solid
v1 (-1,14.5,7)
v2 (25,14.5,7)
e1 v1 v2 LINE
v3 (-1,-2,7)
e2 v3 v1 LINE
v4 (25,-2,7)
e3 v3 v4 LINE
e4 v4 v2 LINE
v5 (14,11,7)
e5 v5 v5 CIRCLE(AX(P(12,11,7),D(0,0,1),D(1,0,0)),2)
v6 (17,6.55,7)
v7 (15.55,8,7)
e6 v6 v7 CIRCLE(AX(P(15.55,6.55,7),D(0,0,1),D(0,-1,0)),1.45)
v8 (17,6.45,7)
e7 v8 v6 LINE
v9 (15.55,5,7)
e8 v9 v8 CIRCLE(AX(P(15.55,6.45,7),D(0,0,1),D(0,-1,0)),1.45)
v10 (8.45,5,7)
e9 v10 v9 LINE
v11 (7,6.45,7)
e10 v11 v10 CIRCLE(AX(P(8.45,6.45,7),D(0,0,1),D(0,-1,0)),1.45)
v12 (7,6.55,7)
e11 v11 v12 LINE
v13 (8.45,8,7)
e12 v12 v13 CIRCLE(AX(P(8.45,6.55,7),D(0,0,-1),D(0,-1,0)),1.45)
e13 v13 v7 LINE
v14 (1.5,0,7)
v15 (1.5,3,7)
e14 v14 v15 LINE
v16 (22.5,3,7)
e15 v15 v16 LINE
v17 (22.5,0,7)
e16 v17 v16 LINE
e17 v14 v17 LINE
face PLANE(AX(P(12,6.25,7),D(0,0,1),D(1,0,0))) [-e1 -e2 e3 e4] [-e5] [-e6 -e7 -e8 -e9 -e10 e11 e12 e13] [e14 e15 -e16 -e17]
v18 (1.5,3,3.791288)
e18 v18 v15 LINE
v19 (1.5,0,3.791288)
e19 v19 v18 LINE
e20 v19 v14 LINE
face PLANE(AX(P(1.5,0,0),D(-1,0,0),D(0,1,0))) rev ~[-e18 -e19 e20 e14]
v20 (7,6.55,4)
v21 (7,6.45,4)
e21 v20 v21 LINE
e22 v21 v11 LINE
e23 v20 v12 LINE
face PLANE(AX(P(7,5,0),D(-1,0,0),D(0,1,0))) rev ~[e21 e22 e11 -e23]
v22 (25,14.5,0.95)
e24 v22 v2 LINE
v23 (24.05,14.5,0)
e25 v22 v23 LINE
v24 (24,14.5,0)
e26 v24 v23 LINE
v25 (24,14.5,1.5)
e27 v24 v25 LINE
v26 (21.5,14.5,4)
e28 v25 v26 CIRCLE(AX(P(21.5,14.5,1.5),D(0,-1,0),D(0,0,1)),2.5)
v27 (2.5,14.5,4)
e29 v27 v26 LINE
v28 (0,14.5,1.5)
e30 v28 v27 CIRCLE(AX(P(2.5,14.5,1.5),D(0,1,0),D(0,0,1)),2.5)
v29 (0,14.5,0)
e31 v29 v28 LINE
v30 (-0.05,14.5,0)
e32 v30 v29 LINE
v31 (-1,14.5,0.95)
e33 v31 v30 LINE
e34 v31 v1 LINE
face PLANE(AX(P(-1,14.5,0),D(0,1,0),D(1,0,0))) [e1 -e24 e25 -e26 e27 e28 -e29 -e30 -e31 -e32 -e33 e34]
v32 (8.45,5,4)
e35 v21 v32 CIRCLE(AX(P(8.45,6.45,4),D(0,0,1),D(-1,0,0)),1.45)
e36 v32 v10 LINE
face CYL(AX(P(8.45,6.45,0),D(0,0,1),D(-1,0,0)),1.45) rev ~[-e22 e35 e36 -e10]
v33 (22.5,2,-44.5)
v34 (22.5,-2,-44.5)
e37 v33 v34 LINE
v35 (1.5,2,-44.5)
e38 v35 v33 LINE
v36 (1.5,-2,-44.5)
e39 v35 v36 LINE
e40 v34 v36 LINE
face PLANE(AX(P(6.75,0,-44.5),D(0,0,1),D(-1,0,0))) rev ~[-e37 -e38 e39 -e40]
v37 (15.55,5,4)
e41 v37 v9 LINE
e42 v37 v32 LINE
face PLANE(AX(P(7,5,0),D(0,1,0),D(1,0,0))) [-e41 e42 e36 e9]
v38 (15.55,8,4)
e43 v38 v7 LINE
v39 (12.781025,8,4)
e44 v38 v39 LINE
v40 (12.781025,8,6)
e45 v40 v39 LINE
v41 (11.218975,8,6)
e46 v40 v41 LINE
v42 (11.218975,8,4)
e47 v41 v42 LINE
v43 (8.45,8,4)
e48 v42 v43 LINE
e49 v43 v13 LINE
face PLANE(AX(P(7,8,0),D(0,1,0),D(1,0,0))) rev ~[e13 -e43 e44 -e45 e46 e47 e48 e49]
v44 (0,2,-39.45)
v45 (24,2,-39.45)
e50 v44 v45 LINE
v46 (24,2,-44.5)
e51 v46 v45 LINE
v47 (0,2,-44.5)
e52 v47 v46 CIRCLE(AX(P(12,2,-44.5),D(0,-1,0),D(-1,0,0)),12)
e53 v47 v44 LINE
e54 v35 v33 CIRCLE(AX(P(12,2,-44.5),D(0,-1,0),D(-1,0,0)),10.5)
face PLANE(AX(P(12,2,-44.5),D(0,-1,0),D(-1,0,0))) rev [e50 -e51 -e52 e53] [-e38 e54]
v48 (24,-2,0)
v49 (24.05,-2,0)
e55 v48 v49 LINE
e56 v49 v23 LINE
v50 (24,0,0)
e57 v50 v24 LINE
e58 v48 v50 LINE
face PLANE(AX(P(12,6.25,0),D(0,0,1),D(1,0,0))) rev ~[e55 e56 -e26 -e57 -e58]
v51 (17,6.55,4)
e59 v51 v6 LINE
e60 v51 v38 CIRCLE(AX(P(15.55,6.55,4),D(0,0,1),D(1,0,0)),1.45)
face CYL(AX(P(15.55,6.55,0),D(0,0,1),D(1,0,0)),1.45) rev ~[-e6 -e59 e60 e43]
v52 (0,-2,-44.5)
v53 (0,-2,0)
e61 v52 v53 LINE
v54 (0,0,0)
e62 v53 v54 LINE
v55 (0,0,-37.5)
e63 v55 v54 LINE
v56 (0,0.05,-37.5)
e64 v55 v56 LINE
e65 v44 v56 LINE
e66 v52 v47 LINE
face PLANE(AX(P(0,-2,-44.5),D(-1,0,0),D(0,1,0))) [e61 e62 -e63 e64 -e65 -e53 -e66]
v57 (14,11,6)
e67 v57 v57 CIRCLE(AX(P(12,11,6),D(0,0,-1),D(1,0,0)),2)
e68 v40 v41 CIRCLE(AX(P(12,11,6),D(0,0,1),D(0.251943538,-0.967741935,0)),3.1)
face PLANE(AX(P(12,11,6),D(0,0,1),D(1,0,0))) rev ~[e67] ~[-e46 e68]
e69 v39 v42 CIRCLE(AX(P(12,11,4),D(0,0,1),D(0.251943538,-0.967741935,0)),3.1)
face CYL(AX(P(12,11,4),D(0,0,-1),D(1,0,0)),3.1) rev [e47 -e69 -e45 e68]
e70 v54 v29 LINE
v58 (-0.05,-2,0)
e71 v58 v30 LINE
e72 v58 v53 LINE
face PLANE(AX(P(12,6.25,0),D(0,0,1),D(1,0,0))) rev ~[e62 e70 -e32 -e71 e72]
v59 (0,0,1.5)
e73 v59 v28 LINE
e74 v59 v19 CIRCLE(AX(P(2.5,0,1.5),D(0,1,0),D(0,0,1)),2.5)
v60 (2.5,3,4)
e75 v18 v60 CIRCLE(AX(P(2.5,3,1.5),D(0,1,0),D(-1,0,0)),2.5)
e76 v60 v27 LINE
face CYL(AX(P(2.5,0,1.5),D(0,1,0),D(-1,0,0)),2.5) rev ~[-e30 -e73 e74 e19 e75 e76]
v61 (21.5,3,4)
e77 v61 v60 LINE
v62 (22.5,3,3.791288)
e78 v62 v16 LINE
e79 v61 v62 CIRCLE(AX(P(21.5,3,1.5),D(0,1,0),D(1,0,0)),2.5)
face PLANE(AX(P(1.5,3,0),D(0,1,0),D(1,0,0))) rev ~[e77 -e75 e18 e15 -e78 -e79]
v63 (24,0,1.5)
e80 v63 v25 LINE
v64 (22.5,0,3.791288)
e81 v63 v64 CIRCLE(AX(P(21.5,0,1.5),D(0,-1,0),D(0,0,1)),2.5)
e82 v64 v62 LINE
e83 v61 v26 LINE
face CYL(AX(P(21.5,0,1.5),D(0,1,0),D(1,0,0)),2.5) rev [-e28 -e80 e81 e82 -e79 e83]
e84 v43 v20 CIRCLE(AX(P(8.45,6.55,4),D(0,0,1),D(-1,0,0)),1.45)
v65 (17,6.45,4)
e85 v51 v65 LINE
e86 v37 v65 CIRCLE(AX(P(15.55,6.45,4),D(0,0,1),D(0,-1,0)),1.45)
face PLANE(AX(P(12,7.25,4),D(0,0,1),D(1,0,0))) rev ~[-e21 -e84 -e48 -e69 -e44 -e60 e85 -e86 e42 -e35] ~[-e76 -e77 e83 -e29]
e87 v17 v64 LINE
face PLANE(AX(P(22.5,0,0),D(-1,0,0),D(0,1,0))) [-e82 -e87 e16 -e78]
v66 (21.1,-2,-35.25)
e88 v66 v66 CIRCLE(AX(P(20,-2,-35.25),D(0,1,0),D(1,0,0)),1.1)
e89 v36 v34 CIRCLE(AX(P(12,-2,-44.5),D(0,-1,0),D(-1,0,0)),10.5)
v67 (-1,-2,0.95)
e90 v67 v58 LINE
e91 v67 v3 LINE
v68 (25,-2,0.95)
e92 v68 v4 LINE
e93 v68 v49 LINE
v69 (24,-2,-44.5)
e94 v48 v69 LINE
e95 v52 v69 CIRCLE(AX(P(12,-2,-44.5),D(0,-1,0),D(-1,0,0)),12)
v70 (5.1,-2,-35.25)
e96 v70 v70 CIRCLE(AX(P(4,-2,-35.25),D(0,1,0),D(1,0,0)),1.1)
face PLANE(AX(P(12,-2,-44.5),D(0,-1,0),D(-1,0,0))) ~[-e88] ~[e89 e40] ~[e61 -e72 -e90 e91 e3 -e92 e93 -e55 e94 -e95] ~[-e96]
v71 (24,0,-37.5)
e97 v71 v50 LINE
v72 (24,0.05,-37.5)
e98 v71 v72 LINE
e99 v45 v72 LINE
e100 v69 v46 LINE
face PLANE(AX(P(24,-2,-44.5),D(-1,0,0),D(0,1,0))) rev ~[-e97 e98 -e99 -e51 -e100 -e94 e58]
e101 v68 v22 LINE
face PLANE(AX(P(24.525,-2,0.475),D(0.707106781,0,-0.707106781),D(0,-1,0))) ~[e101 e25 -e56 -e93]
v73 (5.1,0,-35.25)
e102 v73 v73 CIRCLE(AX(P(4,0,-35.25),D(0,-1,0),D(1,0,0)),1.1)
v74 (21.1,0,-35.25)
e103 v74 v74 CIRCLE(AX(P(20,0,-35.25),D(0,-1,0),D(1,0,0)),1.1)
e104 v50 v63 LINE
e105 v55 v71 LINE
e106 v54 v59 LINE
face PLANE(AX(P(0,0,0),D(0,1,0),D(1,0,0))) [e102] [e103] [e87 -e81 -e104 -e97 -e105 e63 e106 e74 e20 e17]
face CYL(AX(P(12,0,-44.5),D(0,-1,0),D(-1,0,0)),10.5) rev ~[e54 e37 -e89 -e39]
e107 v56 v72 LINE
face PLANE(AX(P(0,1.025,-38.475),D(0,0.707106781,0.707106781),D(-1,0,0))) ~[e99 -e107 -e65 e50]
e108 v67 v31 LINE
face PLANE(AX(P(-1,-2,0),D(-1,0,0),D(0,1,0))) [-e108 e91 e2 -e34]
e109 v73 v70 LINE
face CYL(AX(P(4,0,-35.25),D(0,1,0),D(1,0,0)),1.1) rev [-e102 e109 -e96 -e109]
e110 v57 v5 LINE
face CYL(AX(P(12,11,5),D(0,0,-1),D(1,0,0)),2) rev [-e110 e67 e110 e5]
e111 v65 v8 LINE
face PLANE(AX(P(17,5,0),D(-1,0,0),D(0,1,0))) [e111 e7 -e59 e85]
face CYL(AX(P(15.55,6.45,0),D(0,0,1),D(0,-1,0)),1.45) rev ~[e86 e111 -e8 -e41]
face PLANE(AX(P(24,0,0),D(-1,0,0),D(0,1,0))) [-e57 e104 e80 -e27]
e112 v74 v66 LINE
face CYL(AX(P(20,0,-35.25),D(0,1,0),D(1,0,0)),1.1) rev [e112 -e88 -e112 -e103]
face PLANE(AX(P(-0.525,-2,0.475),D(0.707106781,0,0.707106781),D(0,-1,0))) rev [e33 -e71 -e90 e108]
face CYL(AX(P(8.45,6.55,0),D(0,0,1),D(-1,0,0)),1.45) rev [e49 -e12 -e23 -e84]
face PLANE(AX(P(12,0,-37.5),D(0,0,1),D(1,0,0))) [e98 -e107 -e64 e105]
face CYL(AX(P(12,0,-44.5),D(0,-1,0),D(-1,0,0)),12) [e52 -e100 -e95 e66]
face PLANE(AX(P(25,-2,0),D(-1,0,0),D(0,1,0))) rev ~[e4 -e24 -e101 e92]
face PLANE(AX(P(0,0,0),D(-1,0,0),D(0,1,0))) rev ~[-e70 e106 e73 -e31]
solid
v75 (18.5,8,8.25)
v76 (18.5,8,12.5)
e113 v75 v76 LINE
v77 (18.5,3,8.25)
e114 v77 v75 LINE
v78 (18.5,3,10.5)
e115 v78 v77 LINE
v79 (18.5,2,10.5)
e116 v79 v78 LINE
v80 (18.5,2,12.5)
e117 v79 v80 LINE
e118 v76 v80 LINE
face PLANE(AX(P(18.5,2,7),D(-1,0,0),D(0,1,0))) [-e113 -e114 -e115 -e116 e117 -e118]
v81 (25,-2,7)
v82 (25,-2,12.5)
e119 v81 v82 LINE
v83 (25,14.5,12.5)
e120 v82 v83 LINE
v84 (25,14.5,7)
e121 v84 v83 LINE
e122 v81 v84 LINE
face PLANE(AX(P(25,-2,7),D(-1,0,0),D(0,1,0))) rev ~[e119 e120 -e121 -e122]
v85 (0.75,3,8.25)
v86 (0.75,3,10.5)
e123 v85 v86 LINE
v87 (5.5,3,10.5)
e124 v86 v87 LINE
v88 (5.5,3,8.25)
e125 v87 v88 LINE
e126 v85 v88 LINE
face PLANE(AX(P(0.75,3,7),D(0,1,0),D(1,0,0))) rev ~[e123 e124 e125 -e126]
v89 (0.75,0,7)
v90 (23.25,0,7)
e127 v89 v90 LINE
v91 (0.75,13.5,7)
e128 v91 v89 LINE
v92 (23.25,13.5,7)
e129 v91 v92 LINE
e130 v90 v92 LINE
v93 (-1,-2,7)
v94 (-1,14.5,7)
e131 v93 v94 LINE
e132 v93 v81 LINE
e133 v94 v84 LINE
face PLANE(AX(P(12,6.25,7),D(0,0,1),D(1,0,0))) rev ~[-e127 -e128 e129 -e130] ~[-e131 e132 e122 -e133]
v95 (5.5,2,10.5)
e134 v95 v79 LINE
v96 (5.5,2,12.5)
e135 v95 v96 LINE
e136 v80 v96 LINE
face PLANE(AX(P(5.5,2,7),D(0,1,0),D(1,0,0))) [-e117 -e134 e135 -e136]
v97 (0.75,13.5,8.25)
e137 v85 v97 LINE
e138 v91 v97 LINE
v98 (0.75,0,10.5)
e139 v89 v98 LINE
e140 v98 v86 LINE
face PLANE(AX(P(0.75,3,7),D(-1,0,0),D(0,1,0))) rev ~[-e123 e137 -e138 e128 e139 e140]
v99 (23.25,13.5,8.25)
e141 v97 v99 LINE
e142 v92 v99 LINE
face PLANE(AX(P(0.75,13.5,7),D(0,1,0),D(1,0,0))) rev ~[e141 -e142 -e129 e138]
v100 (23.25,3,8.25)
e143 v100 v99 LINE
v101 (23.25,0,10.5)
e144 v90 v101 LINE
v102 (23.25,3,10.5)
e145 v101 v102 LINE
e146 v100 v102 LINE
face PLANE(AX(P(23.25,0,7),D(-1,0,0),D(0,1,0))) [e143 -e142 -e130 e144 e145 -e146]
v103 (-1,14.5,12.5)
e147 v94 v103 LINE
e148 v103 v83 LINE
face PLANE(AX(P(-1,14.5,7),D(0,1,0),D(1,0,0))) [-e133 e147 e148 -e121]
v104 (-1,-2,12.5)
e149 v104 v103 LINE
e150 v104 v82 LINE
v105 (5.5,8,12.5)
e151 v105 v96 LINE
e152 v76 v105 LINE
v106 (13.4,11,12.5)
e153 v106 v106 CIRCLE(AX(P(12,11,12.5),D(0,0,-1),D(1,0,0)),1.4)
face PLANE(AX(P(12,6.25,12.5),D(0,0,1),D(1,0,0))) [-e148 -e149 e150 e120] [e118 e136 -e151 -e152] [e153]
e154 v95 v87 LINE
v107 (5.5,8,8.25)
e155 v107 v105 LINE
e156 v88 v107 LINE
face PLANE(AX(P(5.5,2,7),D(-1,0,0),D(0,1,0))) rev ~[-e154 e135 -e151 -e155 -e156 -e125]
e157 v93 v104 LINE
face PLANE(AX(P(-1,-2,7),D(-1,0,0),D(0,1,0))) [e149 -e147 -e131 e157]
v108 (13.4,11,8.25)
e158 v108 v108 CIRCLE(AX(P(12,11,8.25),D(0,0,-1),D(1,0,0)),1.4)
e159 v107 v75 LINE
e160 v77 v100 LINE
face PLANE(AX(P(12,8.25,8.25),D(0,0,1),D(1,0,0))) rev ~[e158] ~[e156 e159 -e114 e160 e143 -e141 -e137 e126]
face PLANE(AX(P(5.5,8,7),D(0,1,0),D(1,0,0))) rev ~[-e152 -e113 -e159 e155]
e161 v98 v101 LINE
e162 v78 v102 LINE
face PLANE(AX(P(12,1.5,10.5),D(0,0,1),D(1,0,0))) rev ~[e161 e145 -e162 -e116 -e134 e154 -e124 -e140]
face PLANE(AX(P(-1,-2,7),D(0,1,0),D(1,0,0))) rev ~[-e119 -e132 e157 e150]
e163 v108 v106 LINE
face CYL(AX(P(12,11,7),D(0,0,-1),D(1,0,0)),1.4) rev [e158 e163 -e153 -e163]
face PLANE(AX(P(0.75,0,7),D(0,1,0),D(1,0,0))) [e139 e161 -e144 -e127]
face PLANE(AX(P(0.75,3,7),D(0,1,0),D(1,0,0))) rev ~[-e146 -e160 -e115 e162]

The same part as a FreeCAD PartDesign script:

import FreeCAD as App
import Part
import Sketcher


def edges_at(feature, points):
    """Names of the edges that pass closest to the given points."""
    edges = feature.Shape.Edges
    near = lambda p: min(range(len(edges)), key=lambda i: edges[i].distToShape(Part.Vertex(*p))[0])
    return sorted({f"Edge{near(p) + 1}" for p in points})

doc = App.newDocument("Part")
body = doc.addObject("PartDesign::Body", "Body")

# Sketch on XY plane
sketch1 = body.newObject("Sketcher::SketchObject", "Sketch")
sketch1.AttachmentSupport = (doc.getObject("XY_Plane"), [""])
sketch1.MapMode = "FlatFace"
sketch1.AttachmentOffset = App.Placement(App.Vector(0, 0, 4), App.Rotation())
sketch1.addGeometry(Part.Circle(App.Vector(12, 11, 0), App.Vector(0, 0, 1), 3.1), False)
sketch1.addConstraint([
    Sketcher.Constraint("Diameter", 0, 6.2),
    Sketcher.Constraint("DistanceX", -1, 1, 0, 3, 12.0),
    Sketcher.Constraint("DistanceY", -1, 1, 0, 3, 11.0),
])
pad1 = body.newObject("PartDesign::Pad", "Pad")
pad1.Profile = sketch1
pad1.Length = 2
body2 = doc.addObject("PartDesign::Body", "Body001")

# Sketch on XY plane
sketch2 = body2.newObject("Sketcher::SketchObject", "Sketch001")
sketch2.AttachmentSupport = (doc.getObject("XY_Plane001"), [""])
sketch2.MapMode = "FlatFace"
sketch2.addGeometry([
    Part.LineSegment(App.Vector(1.5, 3, 0), App.Vector(1.5, 0, 0)),
    Part.LineSegment(App.Vector(1.5, 0, 0), App.Vector(22.5, 0, 0)),
    Part.LineSegment(App.Vector(22.5, 0, 0), App.Vector(22.5, 3, 0)),
    Part.LineSegment(App.Vector(22.5, 3, 0), App.Vector(1.5, 3, 0)),
], False)
sketch2.addConstraint([
    Sketcher.Constraint("Coincident", 0, 2, 1, 1),
    Sketcher.Constraint("Coincident", 1, 2, 2, 1),
    Sketcher.Constraint("Coincident", 2, 2, 3, 1),
    Sketcher.Constraint("Coincident", 3, 2, 0, 1),
    Sketcher.Constraint("Vertical", 0),
    Sketcher.Constraint("Horizontal", 1),
    Sketcher.Constraint("Vertical", 2),
    Sketcher.Constraint("Horizontal", 3),
    Sketcher.Constraint("PointOnObject", 0, 2, -1),
    Sketcher.Constraint("DistanceX", 1, 1, 1, 2, 21.0),
    Sketcher.Constraint("DistanceY", 0, 2, 0, 1, 3.0),
    Sketcher.Constraint("DistanceX", -1, 1, 0, 2, 1.5),
])
pad2 = body2.newObject("PartDesign::Pad", "Pad001")
pad2.Profile = sketch2
pad2.Length = 7
body3 = doc.addObject("PartDesign::Body", "Body002")

# Sketch on XY plane
sketch3 = body3.newObject("Sketcher::SketchObject", "Sketch002")
sketch3.AttachmentSupport = (doc.getObject("XY_Plane002"), [""])
sketch3.MapMode = "FlatFace"
sketch3.addGeometry([
    Part.LineSegment(App.Vector(7, 8, 0), App.Vector(7, 5, 0)),
    Part.LineSegment(App.Vector(7, 5, 0), App.Vector(17, 5, 0)),
    Part.LineSegment(App.Vector(17, 5, 0), App.Vector(17, 8, 0)),
    Part.LineSegment(App.Vector(17, 8, 0), App.Vector(7, 8, 0)),
], False)
sketch3.addConstraint([
    Sketcher.Constraint("Coincident", 0, 2, 1, 1),
    Sketcher.Constraint("Coincident", 1, 2, 2, 1),
    Sketcher.Constraint("Coincident", 2, 2, 3, 1),
    Sketcher.Constraint("Coincident", 3, 2, 0, 1),
    Sketcher.Constraint("Vertical", 0),
    Sketcher.Constraint("Horizontal", 1),
    Sketcher.Constraint("Vertical", 2),
    Sketcher.Constraint("Horizontal", 3),
    Sketcher.Constraint("DistanceX", 1, 1, 1, 2, 10.0),
    Sketcher.Constraint("DistanceY", 0, 2, 0, 1, 3.0),
    Sketcher.Constraint("DistanceX", -1, 1, 0, 2, 7.0),
    Sketcher.Constraint("DistanceY", -1, 1, 0, 2, 5.0),
])
pad3 = body3.newObject("PartDesign::Pad", "Pad002")
pad3.Profile = sketch3
pad3.Length = 7
doc.recompute()

fillet = body3.newObject("PartDesign::Fillet", "Fillet")
fillet.Base = (pad3, edges_at(pad3, [
    (7, 5, 3.5),
    (7, 8, 3.5),
    (17, 5, 3.5),
    (17, 8, 3.5),
]))
fillet.Radius = 1.45
body4 = doc.addObject("PartDesign::Body", "Body003")
body4.AllowCompound = True

# Sketch on XY plane
sketch4 = body4.newObject("Sketcher::SketchObject", "Sketch003")
sketch4.AttachmentSupport = (doc.getObject("XY_Plane003"), [""])
sketch4.MapMode = "FlatFace"
sketch4.AttachmentOffset = App.Placement(App.Vector(0, 0, 5), App.Rotation())
sketch4.addGeometry(Part.Circle(App.Vector(12, 11, 0), App.Vector(0, 0, 1), 2), False)
sketch4.addConstraint([
    Sketcher.Constraint("Diameter", 0, 4.0),
    Sketcher.Constraint("DistanceX", -1, 1, 0, 3, 12.0),
    Sketcher.Constraint("DistanceY", -1, 1, 0, 3, 11.0),
])
pad4 = body4.newObject("PartDesign::Pad", "Pad003")
pad4.Profile = sketch4
pad4.Length = 2
doc.recompute()

boolean = body4.newObject("PartDesign::Boolean", "Boolean")
boolean.Type = "Fuse"
boolean.addObjects([body])
doc.recompute()

boolean2 = body4.newObject("PartDesign::Boolean", "Boolean001")
boolean2.Type = "Fuse"
boolean2.addObjects([body2])
doc.recompute()

boolean3 = body4.newObject("PartDesign::Boolean", "Boolean002")
boolean3.Type = "Fuse"
boolean3.addObjects([body3])
body5 = doc.addObject("PartDesign::Body", "Body004")

# Sketch on XY plane
sketch5 = body5.newObject("Sketcher::SketchObject", "Sketch004")
sketch5.AttachmentSupport = (doc.getObject("XY_Plane004"), [""])
sketch5.MapMode = "FlatFace"
sketch5.addGeometry([
    Part.LineSegment(App.Vector(0, 14, 0), App.Vector(0, 0, 0)),
    Part.LineSegment(App.Vector(0, 0, 0), App.Vector(24, 0, 0)),
    Part.LineSegment(App.Vector(24, 0, 0), App.Vector(24, 14, 0)),
    Part.LineSegment(App.Vector(24, 14, 0), App.Vector(0, 14, 0)),
], False)
sketch5.addConstraint([
    Sketcher.Constraint("Coincident", 0, 2, 1, 1),
    Sketcher.Constraint("Coincident", 1, 2, 2, 1),
    Sketcher.Constraint("Coincident", 2, 2, 3, 1),
    Sketcher.Constraint("Coincident", 3, 2, 0, 1),
    Sketcher.Constraint("Vertical", 0),
    Sketcher.Constraint("Horizontal", 1),
    Sketcher.Constraint("Vertical", 2),
    Sketcher.Constraint("Horizontal", 3),
    Sketcher.Constraint("Coincident", 0, 2, -1, 1),
    Sketcher.Constraint("DistanceX", 1, 1, 1, 2, 24.0),
    Sketcher.Constraint("DistanceY", 0, 2, 0, 1, 14.5),
])
pad5 = body5.newObject("PartDesign::Pad", "Pad004")
pad5.Profile = sketch5
pad5.Length = 4
doc.recompute()

fillet2 = body5.newObject("PartDesign::Fillet", "Fillet001")
fillet2.Base = (pad5, edges_at(pad5, [(0, 7.25, 4), (24, 7.25, 4)]))
fillet2.Radius = 2.5
body6 = doc.addObject("PartDesign::Body", "Body005")

# Sketch on XY plane
sketch6 = body6.newObject("Sketcher::SketchObject", "Sketch005")
sketch6.AttachmentSupport = (doc.getObject("XY_Plane005"), [""])
sketch6.MapMode = "FlatFace"
sketch6.addGeometry([
    Part.LineSegment(App.Vector(-1, 14, 0), App.Vector(-1, -2, 0)),
    Part.LineSegment(App.Vector(-1, -2, 0), App.Vector(25, -2, 0)),
    Part.LineSegment(App.Vector(25, -2, 0), App.Vector(25, 14, 0)),
    Part.LineSegment(App.Vector(25, 14, 0), App.Vector(-1, 14, 0)),
], False)
sketch6.addConstraint([
    Sketcher.Constraint("Coincident", 0, 2, 1, 1),
    Sketcher.Constraint("Coincident", 1, 2, 2, 1),
    Sketcher.Constraint("Coincident", 2, 2, 3, 1),
    Sketcher.Constraint("Coincident", 3, 2, 0, 1),
    Sketcher.Constraint("Vertical", 0),
    Sketcher.Constraint("Horizontal", 1),
    Sketcher.Constraint("Vertical", 2),
    Sketcher.Constraint("Horizontal", 3),
    Sketcher.Constraint("DistanceX", 1, 1, 1, 2, 26.0),
    Sketcher.Constraint("DistanceY", 0, 2, 0, 1, 16.5),
    Sketcher.Constraint("DistanceX", 0, 2, -1, 1, 1.0),
    Sketcher.Constraint("DistanceY", 0, 2, -1, 1, 2.0),
])
pad6 = body6.newObject("PartDesign::Pad", "Pad005")
pad6.Profile = sketch6
pad6.Length = 7
doc.recompute()

boolean4 = body6.newObject("PartDesign::Boolean", "Boolean003")
boolean4.Type = "Cut"
boolean4.addObjects([body5])
doc.recompute()

boolean5 = body6.newObject("PartDesign::Boolean", "Boolean004")
boolean5.Type = "Cut"
boolean5.addObjects([body4])
doc.recompute()

chamfer = body6.newObject("PartDesign::Chamfer", "Chamfer")
chamfer.Base = (boolean5, edges_at(boolean5, [(-1, 6.25, 0), (25, 6.25, 0)]))
chamfer.Size = 0.95
body7 = doc.addObject("PartDesign::Body", "Body006")

# Sketch on XY plane
sketch7 = body7.newObject("Sketcher::SketchObject", "Sketch006")
sketch7.AttachmentSupport = (doc.getObject("XY_Plane006"), [""])
sketch7.MapMode = "FlatFace"
sketch7.AttachmentOffset = App.Placement(App.Vector(0, 0, -44.5), App.Rotation())
sketch7.addGeometry([
    Part.LineSegment(App.Vector(12, -2, 0), App.Vector(12, 2, 0)),
    Part.LineSegment(App.Vector(12, 2, 0), App.Vector(1.5, 2, 0)),
    Part.LineSegment(App.Vector(1.5, 2, 0), App.Vector(1.5, -2, 0)),
    Part.LineSegment(App.Vector(1.5, -2, 0), App.Vector(12, -2, 0)),
], False)
sketch7.addGeometry(Part.LineSegment(App.Vector(12, 2, 0), App.Vector(12, -2, 0)), True)  # axis
sketch7.addConstraint([
    Sketcher.Constraint("Coincident", 0, 2, 1, 1),
    Sketcher.Constraint("Coincident", 1, 2, 2, 1),
    Sketcher.Constraint("Coincident", 2, 2, 3, 1),
    Sketcher.Constraint("Coincident", 3, 2, 0, 1),
    Sketcher.Constraint("Vertical", 0),
    Sketcher.Constraint("Horizontal", 1),
    Sketcher.Constraint("Vertical", 2),
    Sketcher.Constraint("Horizontal", 3),
    Sketcher.Constraint("Vertical", 4),
    Sketcher.Constraint("Coincident", 4, 1, 0, 2),
    Sketcher.Constraint("Horizontal", 2, 2, 4, 2),
    Sketcher.Constraint("DistanceY", 0, 1, 0, 2, 4.0),
    Sketcher.Constraint("DistanceX", 1, 2, 1, 1, 10.5),
    Sketcher.Constraint("DistanceX", -1, 1, 0, 2, 12.0),
    Sketcher.Constraint("DistanceY", -1, 1, 0, 2, 2.0),
])
revolution = body7.newObject("PartDesign::Revolution", "Revolution")
revolution.Profile = sketch7
revolution.ReferenceAxis = (sketch7, ["Axis0"])
revolution.Angle = 180
body8 = doc.addObject("PartDesign::Body", "Body007")

# Sketch on XY plane
sketch8 = body8.newObject("Sketcher::SketchObject", "Sketch007")
sketch8.AttachmentSupport = (doc.getObject("XY_Plane007"), [""])
sketch8.MapMode = "FlatFace"
sketch8.AttachmentOffset = App.Placement(App.Vector(0, 0, -44.5), App.Rotation())
sketch8.addGeometry([
    Part.LineSegment(App.Vector(12, -2, 0), App.Vector(12, 2, 0)),
    Part.LineSegment(App.Vector(12, 2, 0), App.Vector(0, 2, 0)),
    Part.LineSegment(App.Vector(0, 2, 0), App.Vector(0, -2, 0)),
    Part.LineSegment(App.Vector(0, -2, 0), App.Vector(12, -2, 0)),
], False)
sketch8.addGeometry(Part.LineSegment(App.Vector(12, 2, 0), App.Vector(12, -2, 0)), True)  # axis
sketch8.addConstraint([
    Sketcher.Constraint("Coincident", 0, 2, 1, 1),
    Sketcher.Constraint("Coincident", 1, 2, 2, 1),
    Sketcher.Constraint("Coincident", 2, 2, 3, 1),
    Sketcher.Constraint("Coincident", 3, 2, 0, 1),
    Sketcher.Constraint("Vertical", 0),
    Sketcher.Constraint("Horizontal", 1),
    Sketcher.Constraint("Vertical", 2),
    Sketcher.Constraint("Horizontal", 3),
    Sketcher.Constraint("Vertical", 4),
    Sketcher.Constraint("Coincident", 4, 1, 0, 2),
    Sketcher.Constraint("Symmetric", 1, 2, 2, 2, -1, 1),
    Sketcher.Constraint("Horizontal", 2, 2, 4, 2),
    Sketcher.Constraint("DistanceX", 1, 2, 1, 1, 12.0),
    Sketcher.Constraint("DistanceY", 0, 1, 0, 2, 4.0),
])
revolution2 = body8.newObject("PartDesign::Revolution", "Revolution001")
revolution2.Profile = sketch8
revolution2.ReferenceAxis = (sketch8, ["Axis0"])
revolution2.Angle = 180
body9 = doc.addObject("PartDesign::Body", "Body008")

# Sketch on XY plane
sketch9 = body9.newObject("Sketcher::SketchObject", "Sketch008")
sketch9.AttachmentSupport = (doc.getObject("XY_Plane008"), [""])
sketch9.MapMode = "FlatFace"
sketch9.AttachmentOffset = App.Placement(App.Vector(0, 0, -44.5), App.Rotation())
sketch9.addGeometry([
    Part.LineSegment(App.Vector(0, 2, 0), App.Vector(0, -2, 0)),
    Part.LineSegment(App.Vector(0, -2, 0), App.Vector(24, -2, 0)),
    Part.LineSegment(App.Vector(24, -2, 0), App.Vector(24, 2, 0)),
    Part.LineSegment(App.Vector(24, 2, 0), App.Vector(0, 2, 0)),
], False)
sketch9.addConstraint([
    Sketcher.Constraint("Coincident", 0, 2, 1, 1),
    Sketcher.Constraint("Coincident", 1, 2, 2, 1),
    Sketcher.Constraint("Coincident", 2, 2, 3, 1),
    Sketcher.Constraint("Coincident", 3, 2, 0, 1),
    Sketcher.Constraint("Vertical", 0),
    Sketcher.Constraint("Horizontal", 1),
    Sketcher.Constraint("Vertical", 2),
    Sketcher.Constraint("Horizontal", 3),
    Sketcher.Constraint("Symmetric", 0, 2, 3, 2, -1, 1),
    Sketcher.Constraint("DistanceX", 1, 1, 1, 2, 24.0),
    Sketcher.Constraint("DistanceY", 0, 2, 0, 1, 4.0),
])
pad7 = body9.newObject("PartDesign::Pad", "Pad006")
pad7.Profile = sketch9
pad7.Length = 7
doc.recompute()

boolean6 = body9.newObject("PartDesign::Boolean", "Boolean005")
boolean6.Type = "Fuse"
boolean6.addObjects([body8])
doc.recompute()

boolean7 = body9.newObject("PartDesign::Boolean", "Boolean006")
boolean7.Type = "Cut"
boolean7.addObjects([body7])
body10 = doc.addObject("PartDesign::Body", "Body009")

# Sketch on XZ plane
sketch10 = body10.newObject("Sketcher::SketchObject", "Sketch009")
sketch10.AttachmentSupport = (doc.getObject("XZ_Plane009"), [""])
sketch10.MapMode = "FlatFace"
sketch10.addGeometry(Part.Circle(App.Vector(4, -35.2, 0), App.Vector(0, 0, 1), 1.1), False)
sketch10.addConstraint([
    Sketcher.Constraint("Diameter", 0, 2.2),
    Sketcher.Constraint("DistanceX", -1, 1, 0, 3, 4.0),
    Sketcher.Constraint("DistanceY", 0, 3, -1, 1, 35.25),
])
pad8 = body10.newObject("PartDesign::Pad", "Pad007")
pad8.Profile = sketch10
pad8.Length = 10
body11 = doc.addObject("PartDesign::Body", "Body010")
body11.AllowCompound = True

# Sketch on XZ plane
sketch11 = body11.newObject("Sketcher::SketchObject", "Sketch010")
sketch11.AttachmentSupport = (doc.getObject("XZ_Plane010"), [""])
sketch11.MapMode = "FlatFace"
sketch11.addGeometry(Part.Circle(App.Vector(20, -35.2, 0), App.Vector(0, 0, 1), 1.1), False)
sketch11.addConstraint([
    Sketcher.Constraint("Diameter", 0, 2.2),
    Sketcher.Constraint("DistanceX", -1, 1, 0, 3, 20.0),
    Sketcher.Constraint("DistanceY", 0, 3, -1, 1, 35.25),
])
pad9 = body11.newObject("PartDesign::Pad", "Pad008")
pad9.Profile = sketch11
pad9.Length = 10
doc.recompute()

boolean8 = body11.newObject("PartDesign::Boolean", "Boolean007")
boolean8.Type = "Fuse"
boolean8.addObjects([body10])
body12 = doc.addObject("PartDesign::Body", "Body011")

# Sketch on XY plane
sketch12 = body12.newObject("Sketcher::SketchObject", "Sketch011")
sketch12.AttachmentSupport = (doc.getObject("XY_Plane011"), [""])
sketch12.MapMode = "FlatFace"
sketch12.AttachmentOffset = App.Placement(App.Vector(0, 0, -37.5), App.Rotation())
sketch12.addGeometry([
    Part.LineSegment(App.Vector(0, 0, 0), App.Vector(0, -2, 0)),
    Part.LineSegment(App.Vector(0, -2, 0), App.Vector(24, -2, 0)),
    Part.LineSegment(App.Vector(24, -2, 0), App.Vector(24, 0, 0)),
    Part.LineSegment(App.Vector(24, 0, 0), App.Vector(0, 0, 0)),
], False)
sketch12.addConstraint([
    Sketcher.Constraint("Coincident", 0, 2, 1, 1),
    Sketcher.Constraint("Coincident", 1, 2, 2, 1),
    Sketcher.Constraint("Coincident", 2, 2, 3, 1),
    Sketcher.Constraint("Coincident", 3, 2, 0, 1),
    Sketcher.Constraint("Vertical", 0),
    Sketcher.Constraint("Horizontal", 1),
    Sketcher.Constraint("Vertical", 2),
    Sketcher.Constraint("Horizontal", 3),
    Sketcher.Constraint("Coincident", 3, 2, -1, 1),
    Sketcher.Constraint("DistanceX", 1, 1, 1, 2, 24.0),
    Sketcher.Constraint("DistanceY", 0, 2, 0, 1, 2.0),
])
pad10 = body12.newObject("PartDesign::Pad", "Pad009")
pad10.Profile = sketch12
pad10.Length = 43.5
doc.recompute()

boolean9 = body12.newObject("PartDesign::Boolean", "Boolean008")
boolean9.Type = "Cut"
boolean9.addObjects([body11])
doc.recompute()

boolean10 = body12.newObject("PartDesign::Boolean", "Boolean009")
boolean10.Type = "Fuse"
boolean10.addObjects([body6])
doc.recompute()

boolean11 = body12.newObject("PartDesign::Boolean", "Boolean010")
boolean11.Type = "Fuse"
boolean11.addObjects([body9])
doc.recompute()

chamfer2 = body12.newObject("PartDesign::Chamfer", "Chamfer001")
chamfer2.Base = (boolean11, edges_at(boolean11, [(12, 2, -37.5)]))
chamfer2.Size = 1.95
body13 = doc.addObject("PartDesign::Body", "Body012")

# Sketch on XY plane
sketch13 = body13.newObject("Sketcher::SketchObject", "Sketch012")
sketch13.AttachmentSupport = (doc.getObject("XY_Plane012"), [""])
sketch13.MapMode = "FlatFace"
sketch13.AttachmentOffset = App.Placement(App.Vector(0, 0, 7), App.Rotation())
sketch13.addGeometry([
    Part.LineSegment(App.Vector(1, 14, 0), App.Vector(1, 3, 0)),
    Part.LineSegment(App.Vector(1, 3, 0), App.Vector(23, 3, 0)),
    Part.LineSegment(App.Vector(23, 3, 0), App.Vector(23, 14, 0)),
    Part.LineSegment(App.Vector(23, 14, 0), App.Vector(1, 14, 0)),
], False)
sketch13.addConstraint([
    Sketcher.Constraint("Coincident", 0, 2, 1, 1),
    Sketcher.Constraint("Coincident", 1, 2, 2, 1),
    Sketcher.Constraint("Coincident", 2, 2, 3, 1),
    Sketcher.Constraint("Coincident", 3, 2, 0, 1),
    Sketcher.Constraint("Vertical", 0),
    Sketcher.Constraint("Horizontal", 1),
    Sketcher.Constraint("Vertical", 2),
    Sketcher.Constraint("Horizontal", 3),
    Sketcher.Constraint("DistanceX", 1, 1, 1, 2, 22.5),
    Sketcher.Constraint("DistanceY", 0, 2, 0, 1, 10.5),
    Sketcher.Constraint("DistanceY", -1, 1, 0, 2, 3.0),
    Sketcher.Constraint("DistanceX", -1, 1, 0, 2, 0.75),
])
pad11 = body13.newObject("PartDesign::Pad", "Pad010")
pad11.Profile = sketch13
pad11.Length = 1.25
body14 = doc.addObject("PartDesign::Body", "Body013")

# Sketch on XY plane
sketch14 = body14.newObject("Sketcher::SketchObject", "Sketch013")
sketch14.AttachmentSupport = (doc.getObject("XY_Plane013"), [""])
sketch14.MapMode = "FlatFace"
sketch14.AttachmentOffset = App.Placement(App.Vector(0, 0, 7), App.Rotation())
sketch14.addGeometry(Part.Circle(App.Vector(12, 11, 0), App.Vector(0, 0, 1), 1.4), False)
sketch14.addConstraint([
    Sketcher.Constraint("Diameter", 0, 2.8),
    Sketcher.Constraint("DistanceX", -1, 1, 0, 3, 12.0),
    Sketcher.Constraint("DistanceY", -1, 1, 0, 3, 11.0),
])
pad12 = body14.newObject("PartDesign::Pad", "Pad011")
pad12.Profile = sketch14
pad12.Length = 6
body15 = doc.addObject("PartDesign::Body", "Body014")

# Sketch on XY plane
sketch15 = body15.newObject("Sketcher::SketchObject", "Sketch014")
sketch15.AttachmentSupport = (doc.getObject("XY_Plane014"), [""])
sketch15.MapMode = "FlatFace"
sketch15.AttachmentOffset = App.Placement(App.Vector(0, 0, 7), App.Rotation())
sketch15.addGeometry([
    Part.LineSegment(App.Vector(0.8, 3, 0), App.Vector(0.8, 0, 0)),
    Part.LineSegment(App.Vector(0.8, 0, 0), App.Vector(23.2, 0, 0)),
    Part.LineSegment(App.Vector(23.2, 0, 0), App.Vector(23.2, 3, 0)),
    Part.LineSegment(App.Vector(23.2, 3, 0), App.Vector(0.8, 3, 0)),
], False)
sketch15.addConstraint([
    Sketcher.Constraint("Coincident", 0, 2, 1, 1),
    Sketcher.Constraint("Coincident", 1, 2, 2, 1),
    Sketcher.Constraint("Coincident", 2, 2, 3, 1),
    Sketcher.Constraint("Coincident", 3, 2, 0, 1),
    Sketcher.Constraint("Vertical", 0),
    Sketcher.Constraint("Horizontal", 1),
    Sketcher.Constraint("Vertical", 2),
    Sketcher.Constraint("Horizontal", 3),
    Sketcher.Constraint("PointOnObject", 0, 2, -1),
    Sketcher.Constraint("DistanceY", 0, 2, 0, 1, 3.0),
    Sketcher.Constraint("DistanceX", 1, 1, 1, 2, 22.5),
    Sketcher.Constraint("DistanceX", -1, 1, 0, 2, 0.75),
])
pad13 = body15.newObject("PartDesign::Pad", "Pad012")
pad13.Profile = sketch15
pad13.Length = 3.5
body16 = doc.addObject("PartDesign::Body", "Body015")
body16.AllowCompound = True

# Sketch on XY plane
sketch16 = body16.newObject("Sketcher::SketchObject", "Sketch015")
sketch16.AttachmentSupport = (doc.getObject("XY_Plane015"), [""])
sketch16.MapMode = "FlatFace"
sketch16.AttachmentOffset = App.Placement(App.Vector(0, 0, 7), App.Rotation())
sketch16.addGeometry([
    Part.LineSegment(App.Vector(6, 8, 0), App.Vector(6, 2, 0)),
    Part.LineSegment(App.Vector(6, 2, 0), App.Vector(18, 2, 0)),
    Part.LineSegment(App.Vector(18, 2, 0), App.Vector(18, 8, 0)),
    Part.LineSegment(App.Vector(18, 8, 0), App.Vector(6, 8, 0)),
], False)
sketch16.addConstraint([
    Sketcher.Constraint("Coincident", 0, 2, 1, 1),
    Sketcher.Constraint("Coincident", 1, 2, 2, 1),
    Sketcher.Constraint("Coincident", 2, 2, 3, 1),
    Sketcher.Constraint("Coincident", 3, 2, 0, 1),
    Sketcher.Constraint("Vertical", 0),
    Sketcher.Constraint("Horizontal", 1),
    Sketcher.Constraint("Vertical", 2),
    Sketcher.Constraint("Horizontal", 3),
    Sketcher.Constraint("DistanceX", 1, 1, 1, 2, 13.0),
    Sketcher.Constraint("DistanceY", 0, 2, 0, 1, 6.0),
    Sketcher.Constraint("DistanceY", -1, 1, 0, 2, 2.0),
    Sketcher.Constraint("DistanceX", -1, 1, 0, 2, 5.5),
])
pad14 = body16.newObject("PartDesign::Pad", "Pad013")
pad14.Profile = sketch16
pad14.Length = 10
doc.recompute()

boolean12 = body16.newObject("PartDesign::Boolean", "Boolean011")
boolean12.Type = "Fuse"
boolean12.addObjects([body14])
doc.recompute()

boolean13 = body16.newObject("PartDesign::Boolean", "Boolean012")
boolean13.Type = "Fuse"
boolean13.addObjects([body15])
body17 = doc.addObject("PartDesign::Body", "Body016")

# Sketch on XY plane
sketch17 = body17.newObject("Sketcher::SketchObject", "Sketch016")
sketch17.AttachmentSupport = (doc.getObject("XY_Plane016"), [""])
sketch17.MapMode = "FlatFace"
sketch17.AttachmentOffset = App.Placement(App.Vector(0, 0, 7), App.Rotation())
sketch17.addGeometry([
    Part.LineSegment(App.Vector(-1, 14, 0), App.Vector(-1, -2, 0)),
    Part.LineSegment(App.Vector(-1, -2, 0), App.Vector(25, -2, 0)),
    Part.LineSegment(App.Vector(25, -2, 0), App.Vector(25, 14, 0)),
    Part.LineSegment(App.Vector(25, 14, 0), App.Vector(-1, 14, 0)),
], False)
sketch17.addConstraint([
    Sketcher.Constraint("Coincident", 0, 2, 1, 1),
    Sketcher.Constraint("Coincident", 1, 2, 2, 1),
    Sketcher.Constraint("Coincident", 2, 2, 3, 1),
    Sketcher.Constraint("Coincident", 3, 2, 0, 1),
    Sketcher.Constraint("Vertical", 0),
    Sketcher.Constraint("Horizontal", 1),
    Sketcher.Constraint("Vertical", 2),
    Sketcher.Constraint("Horizontal", 3),
    Sketcher.Constraint("DistanceX", 1, 1, 1, 2, 26.0),
    Sketcher.Constraint("DistanceY", 0, 2, 0, 1, 16.5),
    Sketcher.Constraint("DistanceX", 0, 2, -1, 1, 1.0),
    Sketcher.Constraint("DistanceY", 0, 2, -1, 1, 2.0),
])
pad15 = body17.newObject("PartDesign::Pad", "Pad014")
pad15.Profile = sketch17
pad15.Length = 5.5
doc.recompute()

boolean14 = body17.newObject("PartDesign::Boolean", "Boolean013")
boolean14.Type = "Cut"
boolean14.addObjects([body16])
doc.recompute()

boolean15 = body17.newObject("PartDesign::Boolean", "Boolean014")
boolean15.Type = "Cut"
boolean15.addObjects([body13])

doc.recompute()
